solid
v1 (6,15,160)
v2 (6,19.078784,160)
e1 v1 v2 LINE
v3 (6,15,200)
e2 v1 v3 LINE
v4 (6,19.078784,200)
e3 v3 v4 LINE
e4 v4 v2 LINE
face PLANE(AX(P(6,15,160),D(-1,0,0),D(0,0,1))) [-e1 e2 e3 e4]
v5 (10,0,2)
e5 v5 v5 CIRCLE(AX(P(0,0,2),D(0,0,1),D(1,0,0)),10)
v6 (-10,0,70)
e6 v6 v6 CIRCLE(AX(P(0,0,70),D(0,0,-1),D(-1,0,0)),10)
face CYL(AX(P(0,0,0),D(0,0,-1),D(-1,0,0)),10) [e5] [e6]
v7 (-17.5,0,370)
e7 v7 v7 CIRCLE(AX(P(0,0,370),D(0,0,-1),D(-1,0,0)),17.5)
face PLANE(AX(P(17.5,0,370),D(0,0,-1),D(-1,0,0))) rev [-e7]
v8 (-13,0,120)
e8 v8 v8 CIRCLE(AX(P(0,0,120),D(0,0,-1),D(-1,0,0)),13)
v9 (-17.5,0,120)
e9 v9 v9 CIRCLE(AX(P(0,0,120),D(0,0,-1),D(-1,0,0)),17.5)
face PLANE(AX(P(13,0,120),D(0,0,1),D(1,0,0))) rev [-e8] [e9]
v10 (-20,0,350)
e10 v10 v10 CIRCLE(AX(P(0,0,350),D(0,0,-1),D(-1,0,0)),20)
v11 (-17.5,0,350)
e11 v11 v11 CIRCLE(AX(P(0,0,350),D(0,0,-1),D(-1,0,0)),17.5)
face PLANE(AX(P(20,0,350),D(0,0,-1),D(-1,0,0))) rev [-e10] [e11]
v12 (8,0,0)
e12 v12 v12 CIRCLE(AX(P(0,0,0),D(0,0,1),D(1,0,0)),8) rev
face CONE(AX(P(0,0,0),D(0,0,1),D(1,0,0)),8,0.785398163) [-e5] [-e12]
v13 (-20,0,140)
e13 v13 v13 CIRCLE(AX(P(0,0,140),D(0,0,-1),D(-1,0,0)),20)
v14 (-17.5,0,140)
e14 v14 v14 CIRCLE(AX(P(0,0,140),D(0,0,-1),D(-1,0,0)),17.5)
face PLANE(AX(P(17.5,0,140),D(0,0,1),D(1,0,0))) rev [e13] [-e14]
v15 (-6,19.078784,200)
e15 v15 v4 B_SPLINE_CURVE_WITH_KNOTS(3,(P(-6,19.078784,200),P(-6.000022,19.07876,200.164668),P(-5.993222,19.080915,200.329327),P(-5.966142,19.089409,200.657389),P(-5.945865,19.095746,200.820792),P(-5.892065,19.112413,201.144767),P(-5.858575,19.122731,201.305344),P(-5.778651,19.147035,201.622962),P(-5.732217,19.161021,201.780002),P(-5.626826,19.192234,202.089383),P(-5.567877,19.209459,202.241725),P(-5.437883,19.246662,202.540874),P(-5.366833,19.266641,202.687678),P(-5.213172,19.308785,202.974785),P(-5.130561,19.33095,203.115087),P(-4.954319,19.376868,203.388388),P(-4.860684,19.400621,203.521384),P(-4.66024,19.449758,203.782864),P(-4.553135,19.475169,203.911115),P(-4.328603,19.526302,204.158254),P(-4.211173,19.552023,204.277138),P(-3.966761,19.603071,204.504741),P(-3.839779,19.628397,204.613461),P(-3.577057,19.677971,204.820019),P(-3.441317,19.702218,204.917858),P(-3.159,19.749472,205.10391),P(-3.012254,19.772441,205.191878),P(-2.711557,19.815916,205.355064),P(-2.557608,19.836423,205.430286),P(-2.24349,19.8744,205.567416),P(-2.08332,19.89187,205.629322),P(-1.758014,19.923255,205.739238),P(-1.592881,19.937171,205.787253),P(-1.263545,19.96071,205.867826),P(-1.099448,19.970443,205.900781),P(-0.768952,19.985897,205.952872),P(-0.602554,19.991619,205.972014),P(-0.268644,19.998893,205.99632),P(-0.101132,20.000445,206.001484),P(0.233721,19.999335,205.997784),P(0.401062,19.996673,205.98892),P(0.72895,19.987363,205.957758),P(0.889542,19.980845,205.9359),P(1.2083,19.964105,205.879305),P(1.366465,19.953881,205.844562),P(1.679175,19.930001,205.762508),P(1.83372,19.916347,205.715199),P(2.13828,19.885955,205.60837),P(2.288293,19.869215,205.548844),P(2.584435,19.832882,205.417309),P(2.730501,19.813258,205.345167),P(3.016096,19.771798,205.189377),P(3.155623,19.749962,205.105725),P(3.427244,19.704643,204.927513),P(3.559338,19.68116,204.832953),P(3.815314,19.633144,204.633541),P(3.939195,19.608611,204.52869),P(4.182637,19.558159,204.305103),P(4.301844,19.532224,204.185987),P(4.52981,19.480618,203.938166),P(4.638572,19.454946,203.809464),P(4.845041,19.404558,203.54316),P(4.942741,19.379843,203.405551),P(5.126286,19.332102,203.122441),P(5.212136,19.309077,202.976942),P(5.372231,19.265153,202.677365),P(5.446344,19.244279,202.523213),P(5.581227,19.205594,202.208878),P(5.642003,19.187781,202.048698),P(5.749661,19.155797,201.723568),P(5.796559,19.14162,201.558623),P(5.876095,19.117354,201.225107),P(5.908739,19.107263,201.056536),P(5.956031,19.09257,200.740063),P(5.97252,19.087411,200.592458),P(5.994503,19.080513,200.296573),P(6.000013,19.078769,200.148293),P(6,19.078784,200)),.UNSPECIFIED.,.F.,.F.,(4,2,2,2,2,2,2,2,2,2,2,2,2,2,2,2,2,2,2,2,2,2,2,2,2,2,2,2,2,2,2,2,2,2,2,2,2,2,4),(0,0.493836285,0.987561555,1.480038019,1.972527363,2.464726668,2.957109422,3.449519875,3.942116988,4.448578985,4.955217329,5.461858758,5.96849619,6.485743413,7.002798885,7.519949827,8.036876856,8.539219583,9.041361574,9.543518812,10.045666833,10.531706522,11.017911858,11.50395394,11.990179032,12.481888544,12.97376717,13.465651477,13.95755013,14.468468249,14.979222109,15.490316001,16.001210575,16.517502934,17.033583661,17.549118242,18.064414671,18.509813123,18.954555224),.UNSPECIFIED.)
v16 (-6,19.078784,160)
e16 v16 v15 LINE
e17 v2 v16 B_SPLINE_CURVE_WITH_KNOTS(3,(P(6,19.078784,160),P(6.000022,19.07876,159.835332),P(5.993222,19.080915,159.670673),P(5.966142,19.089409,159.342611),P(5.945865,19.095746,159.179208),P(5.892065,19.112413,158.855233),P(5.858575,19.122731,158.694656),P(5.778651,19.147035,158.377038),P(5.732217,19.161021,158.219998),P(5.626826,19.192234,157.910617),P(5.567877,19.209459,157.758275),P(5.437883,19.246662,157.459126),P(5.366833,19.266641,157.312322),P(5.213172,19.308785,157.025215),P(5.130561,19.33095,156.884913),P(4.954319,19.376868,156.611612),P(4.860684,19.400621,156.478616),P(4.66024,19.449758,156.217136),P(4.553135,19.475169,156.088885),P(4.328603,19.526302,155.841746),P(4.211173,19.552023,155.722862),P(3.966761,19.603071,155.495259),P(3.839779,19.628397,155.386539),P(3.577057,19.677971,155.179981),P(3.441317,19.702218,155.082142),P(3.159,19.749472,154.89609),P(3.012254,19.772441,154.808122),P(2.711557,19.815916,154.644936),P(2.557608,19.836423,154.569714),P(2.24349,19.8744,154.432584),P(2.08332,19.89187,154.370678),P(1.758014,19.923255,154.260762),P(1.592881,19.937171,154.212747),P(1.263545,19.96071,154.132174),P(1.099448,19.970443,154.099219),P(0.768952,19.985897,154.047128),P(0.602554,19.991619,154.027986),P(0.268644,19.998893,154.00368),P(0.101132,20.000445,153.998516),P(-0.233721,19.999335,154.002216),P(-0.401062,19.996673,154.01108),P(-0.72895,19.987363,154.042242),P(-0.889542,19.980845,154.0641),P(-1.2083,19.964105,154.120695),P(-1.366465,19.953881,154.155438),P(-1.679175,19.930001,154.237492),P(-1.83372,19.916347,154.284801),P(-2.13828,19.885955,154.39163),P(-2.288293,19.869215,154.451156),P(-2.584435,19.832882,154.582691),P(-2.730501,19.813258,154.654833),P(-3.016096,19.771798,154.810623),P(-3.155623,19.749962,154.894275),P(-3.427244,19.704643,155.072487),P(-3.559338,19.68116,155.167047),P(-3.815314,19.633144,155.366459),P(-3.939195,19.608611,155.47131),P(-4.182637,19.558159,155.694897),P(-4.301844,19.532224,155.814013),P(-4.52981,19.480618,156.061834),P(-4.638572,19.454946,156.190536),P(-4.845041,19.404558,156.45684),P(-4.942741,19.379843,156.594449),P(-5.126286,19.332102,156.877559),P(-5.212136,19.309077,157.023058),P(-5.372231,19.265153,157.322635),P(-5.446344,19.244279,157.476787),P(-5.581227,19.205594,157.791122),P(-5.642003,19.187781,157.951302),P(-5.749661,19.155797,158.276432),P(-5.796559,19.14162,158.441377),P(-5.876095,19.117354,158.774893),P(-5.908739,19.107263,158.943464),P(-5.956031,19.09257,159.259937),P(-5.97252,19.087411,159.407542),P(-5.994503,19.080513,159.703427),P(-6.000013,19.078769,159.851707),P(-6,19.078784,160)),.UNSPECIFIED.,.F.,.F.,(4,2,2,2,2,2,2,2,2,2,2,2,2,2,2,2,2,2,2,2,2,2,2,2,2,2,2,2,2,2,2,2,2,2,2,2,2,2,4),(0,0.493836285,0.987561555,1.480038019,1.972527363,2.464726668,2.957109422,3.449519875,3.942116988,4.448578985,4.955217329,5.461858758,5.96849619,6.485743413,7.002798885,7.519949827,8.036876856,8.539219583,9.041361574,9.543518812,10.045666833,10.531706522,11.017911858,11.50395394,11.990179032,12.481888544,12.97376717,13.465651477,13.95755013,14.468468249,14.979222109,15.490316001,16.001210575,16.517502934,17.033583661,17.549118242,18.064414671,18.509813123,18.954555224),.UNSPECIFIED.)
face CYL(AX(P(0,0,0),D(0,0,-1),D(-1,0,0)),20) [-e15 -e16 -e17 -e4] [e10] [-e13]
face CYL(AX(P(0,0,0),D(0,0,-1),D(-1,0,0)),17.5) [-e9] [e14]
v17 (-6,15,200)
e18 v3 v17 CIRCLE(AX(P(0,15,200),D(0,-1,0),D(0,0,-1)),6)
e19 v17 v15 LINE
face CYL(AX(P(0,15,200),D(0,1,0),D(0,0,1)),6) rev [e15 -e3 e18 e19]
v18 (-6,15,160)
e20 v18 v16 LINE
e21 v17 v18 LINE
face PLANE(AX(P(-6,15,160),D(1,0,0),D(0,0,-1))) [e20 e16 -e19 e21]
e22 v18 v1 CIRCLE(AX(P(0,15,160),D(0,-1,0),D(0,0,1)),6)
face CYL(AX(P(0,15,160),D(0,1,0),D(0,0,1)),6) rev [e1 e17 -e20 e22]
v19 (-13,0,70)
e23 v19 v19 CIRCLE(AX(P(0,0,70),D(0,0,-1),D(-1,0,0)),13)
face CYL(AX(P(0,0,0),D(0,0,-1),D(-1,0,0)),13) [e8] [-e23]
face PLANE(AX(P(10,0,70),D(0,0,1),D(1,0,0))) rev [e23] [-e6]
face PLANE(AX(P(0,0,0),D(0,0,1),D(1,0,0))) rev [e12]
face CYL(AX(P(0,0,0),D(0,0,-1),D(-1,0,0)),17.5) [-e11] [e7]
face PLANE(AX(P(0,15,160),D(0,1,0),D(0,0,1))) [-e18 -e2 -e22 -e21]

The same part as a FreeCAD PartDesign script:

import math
import FreeCAD as App
import Part
import Sketcher

V = App.Vector


def edges_at(feature, points):
    """Names of the edges that pass closest to the given points."""
    edges = feature.Shape.Edges
    near = lambda p: min(range(len(edges)), key=lambda i: edges[i].distToShape(Part.Vertex(*p))[0])
    return sorted({f"Edge{near(p) + 1}" for p in points})


def add_polygon(sketch, points):
    """Adds a closed chain of lines whose ends are joined by coincident constraints."""
    first, n = sketch.GeometryCount, len(points)
    for a, b in zip(points, points[1:] + points[:1]):
        sketch.addGeometry(Part.LineSegment(App.Vector(*a, 0), App.Vector(*b, 0)), False)
    for i in range(n):
        sketch.addConstraint(Sketcher.Constraint("Coincident", first + i, 2, first + (i + 1) % n, 1))

doc = App.newDocument("Part")
body = doc.addObject("PartDesign::Body", "Body")

# Sketch on XZ plane
sketch1 = doc.addObject("Sketcher::SketchObject", "Sketch")
body.addObject(sketch1)
sketch1.AttachmentSupport = (doc.XZ_Plane, [""])
sketch1.MapMode = "FlatFace"
add_polygon(sketch1, [(0, 0), (0, 370), (17.5, 370), (17.5, 350), (20, 350), (20, 140), (17.5, 140), (17.5, 120), (13, 120), (13, 70), (10, 70), (10, 0)])  # lines 0-11
sketch1.addConstraint(Sketcher.Constraint("Vertical", 0))
sketch1.addConstraint(Sketcher.Constraint("Horizontal", 1))
sketch1.addConstraint(Sketcher.Constraint("Vertical", 2))
sketch1.addConstraint(Sketcher.Constraint("Horizontal", 3))
sketch1.addConstraint(Sketcher.Constraint("Vertical", 4))
sketch1.addConstraint(Sketcher.Constraint("Horizontal", 5))
sketch1.addConstraint(Sketcher.Constraint("Vertical", 6))
sketch1.addConstraint(Sketcher.Constraint("Horizontal", 7))
sketch1.addConstraint(Sketcher.Constraint("Vertical", 8))
sketch1.addConstraint(Sketcher.Constraint("Horizontal", 9))
sketch1.addConstraint(Sketcher.Constraint("Vertical", 10))
sketch1.addConstraint(Sketcher.Constraint("Horizontal", 11))
sketch1.addConstraint(Sketcher.Constraint("Coincident", 11, 2, -1, 1))
sketch1.addConstraint(Sketcher.Constraint("Vertical", 2, 2, 5, 2))
sketch1.addConstraint(Sketcher.Constraint("Equal", 2, 6))
sketch1.addConstraint(Sketcher.Constraint("DistanceX", 9, 2, 9, 1, 3.0))
sketch1.addConstraint(Sketcher.Constraint("DistanceX", 11, 2, 11, 1, 10.0))
sketch1.addConstraint(Sketcher.Constraint("DistanceY", 0, 1, 0, 2, 370.0))
sketch1.addConstraint(Sketcher.Constraint("DistanceY", 2, 2, 2, 1, 20.0))
sketch1.addConstraint(Sketcher.Constraint("DistanceY", 4, 2, 4, 1, 210.0))
sketch1.addConstraint(Sketcher.Constraint("DistanceY", 8, 2, 8, 1, 50.0))
sketch1.addConstraint(Sketcher.Constraint("DistanceX", 1, 1, 1, 2, 17.5))
sketch1.addConstraint(Sketcher.Constraint("DistanceX", 3, 1, 3, 2, 2.5))
revolution = doc.addObject("PartDesign::Revolution", "Revolution")
body.addObject(revolution)
revolution.Profile = sketch1
revolution.ReferenceAxis = (sketch1, ["V_Axis"])
revolution.Angle = 360

# Sketch on XZ plane
sketch2 = doc.addObject("Sketcher::SketchObject", "Sketch001")
body.addObject(sketch2)
sketch2.AttachmentSupport = (doc.XZ_Plane, [""])
sketch2.MapMode = "FlatFace"
sketch2.AttachmentOffset = App.Placement(V(0, 0, -20), App.Rotation())
sketch2.addGeometry(Part.LineSegment(V(6, 160, 0), V(6, 200, 0)), False)
sketch2.addGeometry(Part.ArcOfCircle(Part.Circle(V(0, 200, 0), V(0, 0, 1), 6), math.radians(0), math.radians(180)), False)
sketch2.addGeometry(Part.LineSegment(V(-6, 200, 0), V(-6, 160, 0)), False)
sketch2.addGeometry(Part.ArcOfCircle(Part.Circle(V(0, 160, 0), V(0, 0, 1), 6), math.radians(180), math.radians(360)), False)
sketch2.addConstraint(Sketcher.Constraint("Tangent", 0, 2, 1, 1))
sketch2.addConstraint(Sketcher.Constraint("Tangent", 1, 2, 2, 1))
sketch2.addConstraint(Sketcher.Constraint("Tangent", 2, 2, 3, 1))
sketch2.addConstraint(Sketcher.Constraint("Tangent", 3, 2, 0, 1))
sketch2.addConstraint(Sketcher.Constraint("Vertical", 0))
sketch2.addConstraint(Sketcher.Constraint("Vertical", 2))
sketch2.addConstraint(Sketcher.Constraint("PointOnObject", 1, 3, -2))
sketch2.addConstraint(Sketcher.Constraint("Radius", 1, 6.0))
sketch2.addConstraint(Sketcher.Constraint("DistanceY", 0, 1, 0, 2, 40.0))
sketch2.addConstraint(Sketcher.Constraint("DistanceY", -1, 1, 1, 3, 200.0))
pocket1 = doc.addObject("PartDesign::Pocket", "Pocket")
body.addObject(pocket1)
pocket1.Profile = sketch2
pocket1.Length = 5
pocket1.Reversed = True
doc.recompute()

chamfer = doc.addObject("PartDesign::Chamfer", "Chamfer")
body.addObject(chamfer)
chamfer.Base = (pocket1, edges_at(pocket1, [(10, 0, 0)]))
chamfer.Size = 2

doc.recompute()
